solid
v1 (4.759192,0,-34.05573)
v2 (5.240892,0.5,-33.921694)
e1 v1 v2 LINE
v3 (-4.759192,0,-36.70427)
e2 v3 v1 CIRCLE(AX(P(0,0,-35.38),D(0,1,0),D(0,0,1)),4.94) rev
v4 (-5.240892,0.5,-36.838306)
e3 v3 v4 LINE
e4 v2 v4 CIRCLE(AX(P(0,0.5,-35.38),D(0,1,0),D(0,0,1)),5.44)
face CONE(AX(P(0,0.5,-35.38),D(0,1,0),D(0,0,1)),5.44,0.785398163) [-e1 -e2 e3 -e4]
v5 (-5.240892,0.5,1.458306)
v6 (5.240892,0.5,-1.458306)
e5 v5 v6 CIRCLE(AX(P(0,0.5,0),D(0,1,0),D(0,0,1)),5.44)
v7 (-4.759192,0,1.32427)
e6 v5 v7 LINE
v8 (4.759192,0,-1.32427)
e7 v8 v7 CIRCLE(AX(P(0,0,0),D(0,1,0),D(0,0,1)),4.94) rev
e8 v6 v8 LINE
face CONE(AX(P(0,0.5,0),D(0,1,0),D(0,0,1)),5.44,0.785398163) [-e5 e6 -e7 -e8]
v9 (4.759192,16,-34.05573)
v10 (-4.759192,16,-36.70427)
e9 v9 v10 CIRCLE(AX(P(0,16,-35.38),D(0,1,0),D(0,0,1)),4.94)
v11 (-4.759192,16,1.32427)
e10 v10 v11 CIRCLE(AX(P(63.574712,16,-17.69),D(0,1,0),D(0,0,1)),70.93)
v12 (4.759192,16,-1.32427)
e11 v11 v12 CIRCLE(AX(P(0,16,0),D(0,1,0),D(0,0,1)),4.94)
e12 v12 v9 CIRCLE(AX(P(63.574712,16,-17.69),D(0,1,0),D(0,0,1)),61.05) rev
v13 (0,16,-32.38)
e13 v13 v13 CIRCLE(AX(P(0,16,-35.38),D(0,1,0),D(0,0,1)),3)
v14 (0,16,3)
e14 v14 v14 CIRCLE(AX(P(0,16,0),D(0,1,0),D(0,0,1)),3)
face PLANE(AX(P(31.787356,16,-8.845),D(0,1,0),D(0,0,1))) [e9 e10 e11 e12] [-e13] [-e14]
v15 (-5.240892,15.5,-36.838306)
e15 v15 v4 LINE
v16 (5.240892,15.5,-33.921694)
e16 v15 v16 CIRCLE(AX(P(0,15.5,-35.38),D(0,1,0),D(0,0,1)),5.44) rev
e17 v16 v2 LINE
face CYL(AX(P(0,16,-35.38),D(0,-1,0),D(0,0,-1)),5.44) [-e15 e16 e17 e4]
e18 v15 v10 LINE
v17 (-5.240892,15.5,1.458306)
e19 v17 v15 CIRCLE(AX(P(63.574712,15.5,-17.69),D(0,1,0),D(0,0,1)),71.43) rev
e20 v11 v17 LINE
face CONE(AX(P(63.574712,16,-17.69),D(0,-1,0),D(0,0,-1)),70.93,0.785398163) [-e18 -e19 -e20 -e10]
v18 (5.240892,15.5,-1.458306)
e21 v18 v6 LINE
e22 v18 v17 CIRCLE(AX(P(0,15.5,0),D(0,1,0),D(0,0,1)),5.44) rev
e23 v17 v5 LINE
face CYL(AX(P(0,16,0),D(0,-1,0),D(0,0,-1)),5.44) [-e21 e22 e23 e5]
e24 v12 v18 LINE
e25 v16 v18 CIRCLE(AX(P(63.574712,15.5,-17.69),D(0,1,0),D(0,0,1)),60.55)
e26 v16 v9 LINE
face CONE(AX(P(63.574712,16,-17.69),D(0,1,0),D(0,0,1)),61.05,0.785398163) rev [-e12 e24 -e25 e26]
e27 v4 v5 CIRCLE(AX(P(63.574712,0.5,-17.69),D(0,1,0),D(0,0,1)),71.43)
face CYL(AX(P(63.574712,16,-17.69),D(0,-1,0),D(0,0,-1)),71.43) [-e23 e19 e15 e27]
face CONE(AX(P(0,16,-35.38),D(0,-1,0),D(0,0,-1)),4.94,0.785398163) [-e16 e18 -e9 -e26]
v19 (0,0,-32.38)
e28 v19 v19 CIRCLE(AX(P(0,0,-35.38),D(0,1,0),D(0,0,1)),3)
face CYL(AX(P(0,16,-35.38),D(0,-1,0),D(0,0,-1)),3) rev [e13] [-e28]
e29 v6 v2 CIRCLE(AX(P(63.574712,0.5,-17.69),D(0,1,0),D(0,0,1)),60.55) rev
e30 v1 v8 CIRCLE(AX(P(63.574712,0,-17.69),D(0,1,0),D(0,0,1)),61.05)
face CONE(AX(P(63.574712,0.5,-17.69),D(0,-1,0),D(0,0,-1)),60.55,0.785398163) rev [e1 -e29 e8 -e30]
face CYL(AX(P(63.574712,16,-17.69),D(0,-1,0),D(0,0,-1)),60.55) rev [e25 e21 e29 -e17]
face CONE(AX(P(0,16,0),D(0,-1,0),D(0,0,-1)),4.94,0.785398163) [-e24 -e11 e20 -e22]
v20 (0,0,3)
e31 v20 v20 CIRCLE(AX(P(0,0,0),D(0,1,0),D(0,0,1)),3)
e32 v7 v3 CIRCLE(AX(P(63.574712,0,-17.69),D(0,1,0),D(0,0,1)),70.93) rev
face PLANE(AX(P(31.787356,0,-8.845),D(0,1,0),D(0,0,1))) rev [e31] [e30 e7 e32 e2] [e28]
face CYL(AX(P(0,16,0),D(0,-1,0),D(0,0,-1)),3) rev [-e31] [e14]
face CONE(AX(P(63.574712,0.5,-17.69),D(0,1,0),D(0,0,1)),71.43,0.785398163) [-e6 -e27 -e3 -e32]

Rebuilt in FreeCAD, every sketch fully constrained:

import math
import FreeCAD as App
import Part
import Sketcher


def edges_at(feature, points):
    """Names of the edges that pass closest to the given points."""
    edges = feature.Shape.Edges
    near = lambda p: min(range(len(edges)), key=lambda i: edges[i].distToShape(Part.Vertex(*p))[0])
    return sorted({f"Edge{near(p) + 1}" for p in points})

doc = App.newDocument("Part")
body = doc.addObject("PartDesign::Body", "Body")

sketch1 = doc.addObject("Sketcher::SketchObject", "Sketch")
body.addObject(sketch1)
sketch1.AttachmentSupport = (doc.XZ_Plane, [""])
sketch1.MapMode = "FlatFace"
sketch1.addGeometry([
    Part.ArcOfCircle(Part.Circle(App.Vector(0, -35.4, 0), App.Vector(0, 0, 1), 5.4), math.radians(-164), math.radians(16)),
    Part.ArcOfCircle(Part.Circle(App.Vector(63.6, -17.7, 0), App.Vector(0, 0, 1), 71.4), math.radians(164), math.radians(196)),
    Part.ArcOfCircle(Part.Circle(App.Vector(0, 0, 0), App.Vector(0, 0, 1), 5.4), math.radians(-16), math.radians(164)),
    Part.ArcOfCircle(Part.Circle(App.Vector(63.6, -17.7, 0), App.Vector(0, 0, 1), 60.5), math.radians(164), math.radians(196)),
    Part.Circle(App.Vector(0, 0, 0), App.Vector(0, 0, 1), 3),
    Part.Circle(App.Vector(0, -35.4, 0), App.Vector(0, 0, 1), 3),
], False)
sketch1.addConstraint([
    Sketcher.Constraint("Tangent", 0, 1, 1, 2),
    Sketcher.Constraint("Tangent", 1, 1, 2, 2),
    Sketcher.Constraint("Tangent", 2, 1, 3, 1),
    Sketcher.Constraint("Tangent", 3, 2, 0, 2),
    Sketcher.Constraint("Coincident", 2, 3, -1, 1),
    Sketcher.Constraint("Coincident", 4, 3, -1, 1),
    Sketcher.Constraint("Coincident", 3, 3, 1, 3),
    Sketcher.Constraint("Coincident", 5, 3, 0, 3),
    Sketcher.Constraint("Equal", 4, 5),
    Sketcher.Constraint("PointOnObject", 0, 3, -2),
    Sketcher.Constraint("Diameter", 4, 6.0),
    Sketcher.Constraint("Radius", 0, 5.44),
    Sketcher.Constraint("Radius", 1, 71.43),
    Sketcher.Constraint("DistanceY", 0, 3, -1, 1, 35.38),
])
pad1 = doc.addObject("PartDesign::Pad", "Pad")
body.addObject(pad1)
pad1.Profile = sketch1
pad1.Length = 16
pad1.Reversed = True
doc.recompute()

chamfer = doc.addObject("PartDesign::Chamfer", "Chamfer")
body.addObject(chamfer)
chamfer.Base = (pad1, edges_at(pad1, [
    (3.025, 16, -17.69),
    (1.458, 16, -40.621),
    (-7.855, 16, -17.69),
    (1.458, 0, -40.621),
    (3.025, 0, -17.69),
    (1.458, 0, 5.241),
    (-7.855, 0, -17.69),
    (1.458, 16, 5.241),
]))
chamfer.Size = 0.5

doc.recompute()
